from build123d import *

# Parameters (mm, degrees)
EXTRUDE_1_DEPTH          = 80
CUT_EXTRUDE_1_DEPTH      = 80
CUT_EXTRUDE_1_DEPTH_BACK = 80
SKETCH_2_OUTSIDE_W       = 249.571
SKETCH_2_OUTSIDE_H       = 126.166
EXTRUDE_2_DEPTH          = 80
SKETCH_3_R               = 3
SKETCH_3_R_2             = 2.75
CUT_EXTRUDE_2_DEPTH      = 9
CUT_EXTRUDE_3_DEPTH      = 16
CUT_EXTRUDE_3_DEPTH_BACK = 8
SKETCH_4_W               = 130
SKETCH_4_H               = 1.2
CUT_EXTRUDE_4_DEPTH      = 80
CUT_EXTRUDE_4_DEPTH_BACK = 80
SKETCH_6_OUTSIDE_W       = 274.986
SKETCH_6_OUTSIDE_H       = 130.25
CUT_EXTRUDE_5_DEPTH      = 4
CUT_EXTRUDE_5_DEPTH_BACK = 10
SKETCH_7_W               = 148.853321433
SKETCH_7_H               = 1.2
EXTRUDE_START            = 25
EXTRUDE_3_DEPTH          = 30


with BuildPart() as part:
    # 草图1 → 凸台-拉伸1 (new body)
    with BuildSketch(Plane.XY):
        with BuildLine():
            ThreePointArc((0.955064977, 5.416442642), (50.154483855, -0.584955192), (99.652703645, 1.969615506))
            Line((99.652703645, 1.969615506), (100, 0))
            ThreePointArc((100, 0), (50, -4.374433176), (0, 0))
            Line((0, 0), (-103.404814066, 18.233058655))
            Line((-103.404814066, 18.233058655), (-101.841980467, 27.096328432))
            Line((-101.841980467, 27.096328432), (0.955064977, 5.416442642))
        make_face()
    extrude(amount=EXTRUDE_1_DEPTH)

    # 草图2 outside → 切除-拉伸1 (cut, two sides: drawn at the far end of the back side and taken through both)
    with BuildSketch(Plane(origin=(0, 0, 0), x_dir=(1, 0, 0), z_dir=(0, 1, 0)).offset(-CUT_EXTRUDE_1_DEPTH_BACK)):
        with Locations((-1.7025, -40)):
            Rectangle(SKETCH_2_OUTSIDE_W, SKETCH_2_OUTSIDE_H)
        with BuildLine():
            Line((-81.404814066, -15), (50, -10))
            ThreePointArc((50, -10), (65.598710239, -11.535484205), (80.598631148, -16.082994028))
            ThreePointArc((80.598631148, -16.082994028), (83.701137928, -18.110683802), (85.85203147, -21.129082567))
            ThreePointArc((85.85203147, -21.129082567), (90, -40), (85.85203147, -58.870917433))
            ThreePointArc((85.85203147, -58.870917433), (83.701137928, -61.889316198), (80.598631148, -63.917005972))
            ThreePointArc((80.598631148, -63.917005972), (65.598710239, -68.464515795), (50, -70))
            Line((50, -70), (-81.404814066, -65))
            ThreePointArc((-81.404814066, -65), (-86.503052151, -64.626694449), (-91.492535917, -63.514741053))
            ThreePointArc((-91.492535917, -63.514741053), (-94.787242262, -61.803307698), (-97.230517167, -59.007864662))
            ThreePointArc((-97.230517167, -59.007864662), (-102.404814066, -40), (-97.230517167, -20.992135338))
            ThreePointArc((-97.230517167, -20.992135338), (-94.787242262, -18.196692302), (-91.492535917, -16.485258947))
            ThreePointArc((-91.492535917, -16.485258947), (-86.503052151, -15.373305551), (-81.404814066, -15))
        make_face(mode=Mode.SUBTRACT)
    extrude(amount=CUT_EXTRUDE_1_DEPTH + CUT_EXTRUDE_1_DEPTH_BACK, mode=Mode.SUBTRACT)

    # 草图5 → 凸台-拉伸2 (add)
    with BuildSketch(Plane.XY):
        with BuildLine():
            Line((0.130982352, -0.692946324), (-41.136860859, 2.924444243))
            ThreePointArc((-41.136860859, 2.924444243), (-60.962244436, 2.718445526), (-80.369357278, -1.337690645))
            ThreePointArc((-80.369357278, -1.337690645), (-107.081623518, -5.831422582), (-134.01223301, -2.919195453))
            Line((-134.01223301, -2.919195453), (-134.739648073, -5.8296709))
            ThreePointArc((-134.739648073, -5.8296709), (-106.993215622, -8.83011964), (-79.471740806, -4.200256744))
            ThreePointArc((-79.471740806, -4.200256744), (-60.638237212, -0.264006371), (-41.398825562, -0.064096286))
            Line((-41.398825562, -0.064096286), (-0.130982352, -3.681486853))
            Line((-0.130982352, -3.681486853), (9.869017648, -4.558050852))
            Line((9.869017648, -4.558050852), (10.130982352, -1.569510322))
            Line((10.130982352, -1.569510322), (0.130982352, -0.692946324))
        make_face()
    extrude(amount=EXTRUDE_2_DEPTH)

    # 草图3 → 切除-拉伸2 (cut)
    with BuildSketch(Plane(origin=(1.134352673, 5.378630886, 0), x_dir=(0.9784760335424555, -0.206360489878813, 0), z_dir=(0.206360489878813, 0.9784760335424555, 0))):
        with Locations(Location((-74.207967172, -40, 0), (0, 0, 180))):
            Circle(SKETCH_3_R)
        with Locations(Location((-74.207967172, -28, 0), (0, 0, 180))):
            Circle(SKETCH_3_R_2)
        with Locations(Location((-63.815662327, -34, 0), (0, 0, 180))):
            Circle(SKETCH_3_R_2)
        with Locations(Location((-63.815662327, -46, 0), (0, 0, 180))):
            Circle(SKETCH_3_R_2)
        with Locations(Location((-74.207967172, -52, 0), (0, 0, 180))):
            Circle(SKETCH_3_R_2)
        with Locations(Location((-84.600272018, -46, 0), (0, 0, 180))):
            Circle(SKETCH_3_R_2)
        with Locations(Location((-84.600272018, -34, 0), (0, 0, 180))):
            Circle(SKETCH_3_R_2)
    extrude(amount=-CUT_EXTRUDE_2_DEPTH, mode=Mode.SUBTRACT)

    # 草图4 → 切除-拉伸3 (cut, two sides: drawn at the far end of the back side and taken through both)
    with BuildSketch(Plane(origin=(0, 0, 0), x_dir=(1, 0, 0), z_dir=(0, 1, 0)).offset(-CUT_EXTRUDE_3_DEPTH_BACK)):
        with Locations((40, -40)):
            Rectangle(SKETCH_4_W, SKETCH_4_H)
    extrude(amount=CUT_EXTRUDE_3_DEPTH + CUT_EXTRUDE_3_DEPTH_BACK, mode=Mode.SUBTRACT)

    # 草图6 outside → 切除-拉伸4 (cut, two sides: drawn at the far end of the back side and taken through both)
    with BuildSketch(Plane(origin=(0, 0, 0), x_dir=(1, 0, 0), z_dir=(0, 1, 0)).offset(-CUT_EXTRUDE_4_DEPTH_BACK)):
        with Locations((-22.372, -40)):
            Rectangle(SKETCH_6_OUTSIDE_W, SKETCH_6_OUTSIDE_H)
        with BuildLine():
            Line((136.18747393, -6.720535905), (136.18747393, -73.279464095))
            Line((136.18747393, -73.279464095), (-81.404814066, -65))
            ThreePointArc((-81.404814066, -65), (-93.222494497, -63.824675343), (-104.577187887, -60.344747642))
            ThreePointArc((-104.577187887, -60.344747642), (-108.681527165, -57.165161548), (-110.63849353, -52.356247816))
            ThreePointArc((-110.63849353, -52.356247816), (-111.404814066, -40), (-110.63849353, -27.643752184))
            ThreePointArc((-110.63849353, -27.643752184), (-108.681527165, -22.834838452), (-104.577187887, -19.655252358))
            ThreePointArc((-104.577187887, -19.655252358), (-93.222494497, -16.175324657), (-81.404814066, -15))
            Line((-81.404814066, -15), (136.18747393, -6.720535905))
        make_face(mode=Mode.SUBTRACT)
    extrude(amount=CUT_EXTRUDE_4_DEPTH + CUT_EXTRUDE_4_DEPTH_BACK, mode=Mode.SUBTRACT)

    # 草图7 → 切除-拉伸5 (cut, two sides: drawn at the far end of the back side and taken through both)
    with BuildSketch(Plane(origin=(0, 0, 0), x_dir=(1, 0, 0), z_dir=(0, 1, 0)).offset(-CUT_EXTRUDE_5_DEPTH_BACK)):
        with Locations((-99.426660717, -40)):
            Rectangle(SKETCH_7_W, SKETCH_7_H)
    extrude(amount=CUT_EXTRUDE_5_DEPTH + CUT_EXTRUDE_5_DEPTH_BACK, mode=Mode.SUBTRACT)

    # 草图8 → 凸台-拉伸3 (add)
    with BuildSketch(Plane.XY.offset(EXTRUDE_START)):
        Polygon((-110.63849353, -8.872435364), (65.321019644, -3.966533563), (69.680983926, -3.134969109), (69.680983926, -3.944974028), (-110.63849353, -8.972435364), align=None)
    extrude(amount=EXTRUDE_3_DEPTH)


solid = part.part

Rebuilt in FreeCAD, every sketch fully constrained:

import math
import FreeCAD as App
import Part
import Sketcher

V = App.Vector
Q = App.Units.Quantity


def add_polygon(sketch, points):
    """Adds a closed chain of lines whose ends are joined by coincident constraints."""
    first, n = sketch.GeometryCount, len(points)
    for a, b in zip(points, points[1:] + points[:1]):
        sketch.addGeometry(Part.LineSegment(App.Vector(*a, 0), App.Vector(*b, 0)), False)
    for i in range(n):
        sketch.addConstraint(Sketcher.Constraint("Coincident", first + i, 2, first + (i + 1) % n, 1))

doc = App.newDocument("Part")
body = doc.addObject("PartDesign::Body", "Body")

# Sketch on XY plane
sketch1 = body.newObject("Sketcher::SketchObject", "Sketch")
sketch1.AttachmentSupport = (doc.getObject("XY_Plane"), [""])
sketch1.MapMode = "FlatFace"
sketch1.addGeometry(Part.ArcOfCircle(Part.Circle(V(60.169429, 286.18645, 0), V(0, 0, 1), 286.946228), math.radians(-101.909152), math.radians(-82.091114)), False)
sketch1.addGeometry(Part.LineSegment(V(0.955065, 5.416443, 0), V(-101.84198, 27.096328, 0)), False)
sketch1.addGeometry(Part.LineSegment(V(-101.84198, 27.096328, 0), V(-103.404814, 18.233059, 0)), False)
sketch1.addGeometry(Part.LineSegment(V(-103.404814, 18.233059, 0), V(0, 0, 0)), False)
sketch1.addGeometry(Part.ArcOfCircle(Part.Circle(V(50, 283.564091, 0), V(0, 0, 1), 287.938524), math.radians(-100), math.radians(-80)), False)
sketch1.addGeometry(Part.LineSegment(V(100, 0, 0), V(99.652704, 1.969616, 0)), False)
sketch1.addConstraint(Sketcher.Constraint("Tangent", 0, 1, 1, 1))
sketch1.addConstraint(Sketcher.Constraint("Coincident", 1, 2, 2, 1))
sketch1.addConstraint(Sketcher.Constraint("Coincident", 2, 2, 3, 1))
sketch1.addConstraint(Sketcher.Constraint("Tangent", 3, 2, 4, 1))
sketch1.addConstraint(Sketcher.Constraint("Coincident", 4, 2, 5, 1))
sketch1.addConstraint(Sketcher.Constraint("Coincident", 5, 2, 0, 2))
sketch1.addConstraint(Sketcher.Constraint("Coincident", 3, 2, -1, 1))
sketch1.addConstraint(Sketcher.Constraint("PointOnObject", 4, 2, -1))
sketch1.addConstraint(Sketcher.Constraint("Perpendicular", 2, 3))
sketch1.addConstraint(Sketcher.Constraint("Angle", 2, Q("-100 deg")))
sketch1.addConstraint(Sketcher.Constraint("Angle", 5, Q("100 deg")))
sketch1.addConstraint(Sketcher.Constraint("Distance", 2, Q("9 mm")))
sketch1.addConstraint(Sketcher.Constraint("Distance", 3, Q("105 mm")))
sketch1.addConstraint(Sketcher.Constraint("Distance", 5, Q("2 mm")))
sketch1.addConstraint(Sketcher.Constraint("DistanceX", -1, 1, 4, 3, Q("50 mm")))
sketch1.addConstraint(Sketcher.Constraint("Radius", 0, Q("286.946228 mm")))
sketch1.addConstraint(Sketcher.Constraint("DistanceX", -1, 1, 0, 3, Q("60.169429 mm")))
pad1 = body.newObject("PartDesign::Pad", "Pad")
pad1.Profile = sketch1
pad1.Length = 80

# Sketch on XZ plane
sketch2 = body.newObject("Sketcher::SketchObject", "Sketch001")
sketch2.AttachmentSupport = (doc.getObject("XZ_Plane"), [""])
sketch2.MapMode = "FlatFace"
add_polygon(sketch2, [(-126.488, -23.083), (-126.488, 103.083), (123.083, 103.083), (123.083, -23.083)])  # lines 0-3
sketch2.addGeometry(Part.ArcOfCircle(Part.Circle(V(-81.404814, 50, 0), V(0, 0, 1), 35), math.radians(-106.751457), math.radians(-90)), False)  # 4
sketch2.addGeometry(Part.LineSegment(V(-81.404814, 15, 0), V(50, 10, 0)), False)  # 5
sketch2.addGeometry(Part.ArcOfCircle(Part.Circle(V(50, 90, 0), V(0, 0, 1), 80), math.radians(-90), math.radians(-67.512436)), False)  # 6
sketch2.addGeometry(Part.ArcOfCircle(Part.Circle(V(76.773802, 25.32262, 0), V(0, 0, 1), 10), math.radians(-67.512436), math.radians(-24.793792)), False)  # 7
sketch2.addGeometry(Part.ArcOfCircle(Part.Circle(V(45, 40, 0), V(0, 0, 1), 45), math.radians(-24.793792), math.radians(24.793792)), False)  # 8
sketch2.addGeometry(Part.ArcOfCircle(Part.Circle(V(76.773802, 54.67738, 0), V(0, 0, 1), 10), math.radians(24.793792), math.radians(67.512436)), False)  # 9
sketch2.addGeometry(Part.ArcOfCircle(Part.Circle(V(50, -10, 0), V(0, 0, 1), 80), math.radians(67.512436), math.radians(90)), False)  # 10
sketch2.addGeometry(Part.LineSegment(V(50, 70, 0), V(-81.404814, 65, 0)), False)  # 11
sketch2.addGeometry(Part.ArcOfCircle(Part.Circle(V(-81.404814, 30, 0), V(0, 0, 1), 35), math.radians(90), math.radians(106.751457)), False)  # 12
sketch2.addGeometry(Part.ArcOfCircle(Part.Circle(V(-88.61033, 53.939101, 0), V(0, 0, 1), 10), math.radians(106.751457), math.radians(149.544009)), False)  # 13
sketch2.addGeometry(Part.ArcOfCircle(Part.Circle(V(-64.904814, 40, 0), V(0, 0, 1), 37.5), math.radians(149.544009), math.radians(210.455991)), False)  # 14
sketch2.addGeometry(Part.ArcOfCircle(Part.Circle(V(-88.61033, 26.060899, 0), V(0, 0, 1), 10), math.radians(-149.544009), math.radians(-106.751457)), False)  # 15
sketch2.addConstraint(Sketcher.Constraint("Coincident", 4, 2, 5, 1))
sketch2.addConstraint(Sketcher.Constraint("Coincident", 5, 2, 6, 1))
sketch2.addConstraint(Sketcher.Constraint("Tangent", 6, 2, 7, 1))
sketch2.addConstraint(Sketcher.Constraint("Tangent", 7, 2, 8, 1))
sketch2.addConstraint(Sketcher.Constraint("Tangent", 8, 2, 9, 1))
sketch2.addConstraint(Sketcher.Constraint("Tangent", 9, 2, 10, 1))
sketch2.addConstraint(Sketcher.Constraint("Coincident", 10, 2, 11, 1))
sketch2.addConstraint(Sketcher.Constraint("Coincident", 11, 2, 12, 1))
sketch2.addConstraint(Sketcher.Constraint("Tangent", 12, 2, 13, 1))
sketch2.addConstraint(Sketcher.Constraint("Tangent", 13, 2, 14, 1))
sketch2.addConstraint(Sketcher.Constraint("Tangent", 14, 2, 15, 1))
sketch2.addConstraint(Sketcher.Constraint("Tangent", 15, 2, 4, 1))
sketch2.addConstraint(Sketcher.Constraint("Vertical", 0))
sketch2.addConstraint(Sketcher.Constraint("Horizontal", 1))
sketch2.addConstraint(Sketcher.Constraint("Vertical", 2))
sketch2.addConstraint(Sketcher.Constraint("Horizontal", 3))
sketch2.addConstraint(Sketcher.Constraint("Equal", 7, 9))
sketch2.addConstraint(Sketcher.Constraint("Equal", 6, 10))
sketch2.addConstraint(Sketcher.Constraint("Equal", 4, 12))
sketch2.addConstraint(Sketcher.Constraint("Equal", 9, 13))
sketch2.addConstraint(Sketcher.Constraint("Equal", 13, 15))
sketch2.addConstraint(Sketcher.Constraint("Horizontal", 8, 3, 14, 3))
sketch2.addConstraint(Sketcher.Constraint("Vertical", 7, 3, 9, 3))
sketch2.addConstraint(Sketcher.Constraint("Vertical", 6, 3, 10, 3))
sketch2.addConstraint(Sketcher.Constraint("Vertical", 4, 3, 12, 3))
sketch2.addConstraint(Sketcher.Constraint("Vertical", 13, 3, 15, 3))
sketch2.addConstraint(Sketcher.Constraint("Vertical", 12, 3, 4, 2))
sketch2.addConstraint(Sketcher.Constraint("Vertical", 10, 3, 5, 2))
sketch2.addConstraint(Sketcher.Constraint("Vertical", 5, 2, 10, 2))
sketch2.addConstraint(Sketcher.Constraint("Vertical", 4, 2, 11, 2))
sketch2.addConstraint(Sketcher.Constraint("Radius", 4, Q("35 mm")))
sketch2.addConstraint(Sketcher.Constraint("Radius", 6, Q("80 mm")))
sketch2.addConstraint(Sketcher.Constraint("Radius", 7, Q("10 mm")))
sketch2.addConstraint(Sketcher.Constraint("Radius", 8, Q("45 mm")))
sketch2.addConstraint(Sketcher.Constraint("Radius", 14, Q("37.5 mm")))
sketch2.addConstraint(Sketcher.Constraint("DistanceY", -1, 1, 4, 3, Q("50 mm")))
sketch2.addConstraint(Sketcher.Constraint("DistanceX", -1, 1, 6, 3, Q("50 mm")))
sketch2.addConstraint(Sketcher.Constraint("DistanceY", -1, 1, 6, 3, Q("90 mm")))
sketch2.addConstraint(Sketcher.Constraint("DistanceX", -1, 1, 8, 3, Q("45 mm")))
sketch2.addConstraint(Sketcher.Constraint("DistanceY", -1, 1, 8, 3, Q("40 mm")))
sketch2.addConstraint(Sketcher.Constraint("DistanceX", 12, 3, 14, 3, Q("16.5 mm")))
sketch2.addConstraint(Sketcher.Constraint("DistanceX", 1, 1, 1, 2, Q("249.571 mm")))
sketch2.addConstraint(Sketcher.Constraint("DistanceY", 0, 1, 0, 2, Q("126.166 mm")))
sketch2.addConstraint(Sketcher.Constraint("DistanceX", 0, 2, -1, 1, Q("126.488 mm")))
sketch2.addConstraint(Sketcher.Constraint("DistanceY", -1, 1, 0, 2, Q("103.083 mm")))
sketch2.addConstraint(Sketcher.Constraint("DistanceX", 13, 3, -1, 1, Q("88.61033 mm")))
pocket1 = body.newObject("PartDesign::Pocket", "Pocket")
pocket1.Profile = sketch2
pocket1.Type = "ThroughAll"
pocket1.Midplane = True

# Sketch on XY plane
sketch3 = body.newObject("Sketcher::SketchObject", "Sketch002")
sketch3.AttachmentSupport = (doc.getObject("XY_Plane"), [""])
sketch3.MapMode = "FlatFace"
sketch3.addGeometry(Part.LineSegment(V(0.130982, -0.692946, 0), V(-41.136861, 2.924444, 0)), False)
sketch3.addGeometry(Part.ArcOfCircle(Part.Circle(V(-50, -98.187844, 0), V(0, 0, 1), 101.5), math.radians(84.990463), math.radians(107.409889)), False)
sketch3.addGeometry(Part.ArcOfCircle(Part.Circle(V(-110, 93.156646, 0), V(0, 0, 1), 99.03108), math.radians(-104.032467), math.radians(-72.590111)), False)
sketch3.addGeometry(Part.LineSegment(V(-134.012233, -2.919195, 0), V(-134.739648, -5.829671, 0)), False)
sketch3.addGeometry(Part.ArcOfCircle(Part.Circle(V(-110, 93.156646, 0), V(0, 0, 1), 102.03108), math.radians(-104.032467), math.radians(-72.590111)), False)
sketch3.addGeometry(Part.ArcOfCircle(Part.Circle(V(-50, -98.187844, 0), V(0, 0, 1), 98.5), math.radians(84.990463), math.radians(107.409889)), False)
sketch3.addGeometry(Part.LineSegment(V(-41.398826, -0.064096, 0), V(-0.130982, -3.681487, 0)), False)
sketch3.addGeometry(Part.LineSegment(V(-0.130982, -3.681487, 0), V(9.869018, -4.558051, 0)), False)
sketch3.addGeometry(Part.LineSegment(V(9.869018, -4.558051, 0), V(10.130982, -1.56951, 0)), False)
sketch3.addGeometry(Part.LineSegment(V(10.130982, -1.56951, 0), V(0.130982, -0.692946, 0)), False)
sketch3.addConstraint(Sketcher.Constraint("Tangent", 0, 2, 1, 1))
sketch3.addConstraint(Sketcher.Constraint("Tangent", 1, 2, 2, 2))
sketch3.addConstraint(Sketcher.Constraint("Coincident", 2, 1, 3, 1))
sketch3.addConstraint(Sketcher.Constraint("Coincident", 3, 2, 4, 1))
sketch3.addConstraint(Sketcher.Constraint("Tangent", 4, 2, 5, 2))
sketch3.addConstraint(Sketcher.Constraint("Tangent", 5, 1, 6, 1))
sketch3.addConstraint(Sketcher.Constraint("Coincident", 6, 2, 7, 1))
sketch3.addConstraint(Sketcher.Constraint("Coincident", 7, 2, 8, 1))
sketch3.addConstraint(Sketcher.Constraint("Coincident", 8, 2, 9, 1))
sketch3.addConstraint(Sketcher.Constraint("Coincident", 9, 2, 0, 1))
sketch3.addConstraint(Sketcher.Constraint("Coincident", 4, 3, 2, 3))
sketch3.addConstraint(Sketcher.Constraint("Coincident", 5, 3, 1, 3))
sketch3.addConstraint(Sketcher.Constraint("Parallel", 0, 6))
sketch3.addConstraint(Sketcher.Constraint("Parallel", 6, 7))
sketch3.addConstraint(Sketcher.Constraint("Perpendicular", 7, 8))
sketch3.addConstraint(Sketcher.Constraint("Perpendicular", 8, 9))
sketch3.addConstraint(Sketcher.Constraint("Equal", 0, 6))
sketch3.addConstraint(Sketcher.Constraint("Radius", 1, Q("101.5 mm")))
sketch3.addConstraint(Sketcher.Constraint("Radius", 5, Q("98.5 mm")))
sketch3.addConstraint(Sketcher.Constraint("DistanceX", 1, 3, -1, 1, Q("50 mm")))
sketch3.addConstraint(Sketcher.Constraint("DistanceX", 2, 3, -1, 1, Q("110 mm")))
sketch3.addConstraint(Sketcher.Constraint("DistanceX", 6, 2, 7, 2, Q("10 mm")))
sketch3.addConstraint(Sketcher.Constraint("Radius", 2, Q("99.03108 mm")))
sketch3.addConstraint(Sketcher.Constraint("DistanceY", 2, 1, 5, 1, Q("2.855099 mm")))
sketch3.addConstraint(Sketcher.Constraint("DistanceX", 0, 2, -1, 1, Q("41.136861 mm")))
sketch3.addConstraint(Sketcher.Constraint("DistanceY", 1, 2, -1, 1, Q("1.337691 mm")))
sketch3.addConstraint(Sketcher.Constraint("DistanceX", 3, 2, -1, 1, Q("134.739648 mm")))
sketch3.addConstraint(Sketcher.Constraint("DistanceY", 7, 2, -1, 1, Q("4.558051 mm")))
pad2 = body.newObject("PartDesign::Pad", "Pad001")
pad2.Profile = sketch3
pad2.Length = 80

# Sketch on an angled plane
sketch4 = body.newObject("Sketcher::SketchObject", "Sketch003")
sketch4.Placement = App.Placement(V(1.134353, 5.378631, 0), App.Rotation(V(0.978476034, -0.20636049, 0), V(0, 0, -1.000000001), V(0.20636049, 0.978476034, 0), "ZXY"))
sketch4.addGeometry(Part.Circle(V(-74.207967, -40, 0), V(0, 0, 1), 3), False)
sketch4.addGeometry(Part.Circle(V(-74.207967, -28, 0), V(0, 0, 1), 2.75), False)
sketch4.addGeometry(Part.Circle(V(-63.815662, -34, 0), V(0, 0, 1), 2.75), False)
sketch4.addGeometry(Part.Circle(V(-63.815662, -46, 0), V(0, 0, 1), 2.75), False)
sketch4.addGeometry(Part.Circle(V(-74.207967, -52, 0), V(0, 0, 1), 2.75), False)
sketch4.addGeometry(Part.Circle(V(-84.600272, -46, 0), V(0, 0, 1), 2.75), False)
sketch4.addGeometry(Part.Circle(V(-84.600272, -34, 0), V(0, 0, 1), 2.75), False)
sketch4.addConstraint(Sketcher.Constraint("Equal", 1, 2))
sketch4.addConstraint(Sketcher.Constraint("Equal", 2, 3))
sketch4.addConstraint(Sketcher.Constraint("Equal", 3, 4))
sketch4.addConstraint(Sketcher.Constraint("Equal", 4, 5))
sketch4.addConstraint(Sketcher.Constraint("Equal", 5, 6))
sketch4.addConstraint(Sketcher.Constraint("Horizontal", 3, 3, 5, 3))
sketch4.addConstraint(Sketcher.Constraint("Horizontal", 2, 3, 6, 3))
sketch4.addConstraint(Sketcher.Constraint("Vertical", 0, 3, 1, 3))
sketch4.addConstraint(Sketcher.Constraint("Vertical", 2, 3, 3, 3))
sketch4.addConstraint(Sketcher.Constraint("Vertical", 1, 3, 4, 3))
sketch4.addConstraint(Sketcher.Constraint("Vertical", 5, 3, 6, 3))
sketch4.addConstraint(Sketcher.Constraint("Diameter", 0, Q("6 mm")))
sketch4.addConstraint(Sketcher.Constraint("Diameter", 1, Q("5.5 mm")))
sketch4.addConstraint(Sketcher.Constraint("DistanceY", 0, 3, -1, 1, Q("40 mm")))
sketch4.addConstraint(Sketcher.Constraint("DistanceY", 1, 3, -1, 1, Q("28 mm")))
sketch4.addConstraint(Sketcher.Constraint("DistanceY", 2, 3, -1, 1, Q("34 mm")))
sketch4.addConstraint(Sketcher.Constraint("DistanceY", 3, 3, -1, 1, Q("46 mm")))
sketch4.addConstraint(Sketcher.Constraint("DistanceY", 4, 3, -1, 1, Q("52 mm")))
sketch4.addConstraint(Sketcher.Constraint("DistanceX", 5, 3, 3, 3, Q("20.78461 mm")))
sketch4.addConstraint(Sketcher.Constraint("DistanceX", 0, 3, -1, 1, Q("74.207967 mm")))
sketch4.addConstraint(Sketcher.Constraint("DistanceX", 2, 3, -1, 1, Q("63.815662 mm")))
pocket2 = body.newObject("PartDesign::Pocket", "Pocket001")
pocket2.Profile = sketch4
pocket2.Length = 9

# Sketch on XZ plane
sketch5 = body.newObject("Sketcher::SketchObject", "Sketch004")
sketch5.AttachmentSupport = (doc.getObject("XZ_Plane"), [""])
sketch5.MapMode = "FlatFace"
add_polygon(sketch5, [(-25, 39.4), (-25, 40.6), (105, 40.6), (105, 39.4)])  # lines 0-3
sketch5.addConstraint(Sketcher.Constraint("Vertical", 0))
sketch5.addConstraint(Sketcher.Constraint("Horizontal", 1))
sketch5.addConstraint(Sketcher.Constraint("Vertical", 2))
sketch5.addConstraint(Sketcher.Constraint("Horizontal", 3))
sketch5.addConstraint(Sketcher.Constraint("DistanceX", 1, 1, 1, 2, Q("130 mm")))
sketch5.addConstraint(Sketcher.Constraint("DistanceY", 0, 1, 0, 2, Q("1.2 mm")))
sketch5.addConstraint(Sketcher.Constraint("DistanceX", 0, 2, -1, 1, Q("25 mm")))
sketch5.addConstraint(Sketcher.Constraint("DistanceY", -1, 1, 0, 2, Q("40.6 mm")))
pocket3 = body.newObject("PartDesign::Pocket", "Pocket002")
pocket3.Profile = sketch5
pocket3.Type = "ThroughAll"
pocket3.Midplane = True

# Sketch on XZ plane
sketch6 = body.newObject("Sketcher::SketchObject", "Sketch005")
sketch6.AttachmentSupport = (doc.getObject("XZ_Plane"), [""])
sketch6.MapMode = "FlatFace"
sketch6.addGeometry(Part.LineSegment(V(-159.865, -25.125, 0), V(-159.865, 105.125, 0)), False)
sketch6.addGeometry(Part.LineSegment(V(-159.865, 105.125, 0), V(115.121, 105.125, 0)), False)
sketch6.addGeometry(Part.LineSegment(V(115.121, 105.125, 0), V(115.121, 72.477877, 0)), False)
sketch6.addGeometry(Part.LineSegment(V(115.121, 72.477877, 0), V(-81.404814, 65, 0)), False)
sketch6.addGeometry(Part.ArcOfCircle(Part.Circle(V(-81.404814, 5, 0), V(0, 0, 1), 60), math.radians(90), math.radians(112.718645)), False)
sketch6.addGeometry(Part.ArcOfCircle(Part.Circle(V(-100.715126, 51.120623, 0), V(0, 0, 1), 10), math.radians(112.718645), math.radians(172.902252)), False)
sketch6.addGeometry(Part.ArcOfCircle(Part.Circle(V(-11.404814, 40, 0), V(0, 0, 1), 100), math.radians(172.902252), math.radians(187.097748)), False)
sketch6.addGeometry(Part.ArcOfCircle(Part.Circle(V(-100.715126, 28.879377, 0), V(0, 0, 1), 10), math.radians(-172.902252), math.radians(-112.718645)), False)
sketch6.addGeometry(Part.ArcOfCircle(Part.Circle(V(-81.404814, 75, 0), V(0, 0, 1), 60), math.radians(-112.718645), math.radians(-90)), False)
sketch6.addGeometry(Part.LineSegment(V(-81.404814, 15, 0), V(115.121, 7.522123, 0)), False)
sketch6.addGeometry(Part.LineSegment(V(115.121, 7.522123, 0), V(115.121, -25.125, 0)), False)
sketch6.addGeometry(Part.LineSegment(V(115.121, -25.125, 0), V(-159.865, -25.125, 0)), False)
sketch6.addConstraint(Sketcher.Constraint("Coincident", 0, 2, 1, 1))
sketch6.addConstraint(Sketcher.Constraint("Coincident", 1, 2, 2, 1))
sketch6.addConstraint(Sketcher.Constraint("Coincident", 2, 2, 3, 1))
sketch6.addConstraint(Sketcher.Constraint("Coincident", 3, 2, 4, 1))
sketch6.addConstraint(Sketcher.Constraint("Tangent", 4, 2, 5, 1))
sketch6.addConstraint(Sketcher.Constraint("Tangent", 5, 2, 6, 1))
sketch6.addConstraint(Sketcher.Constraint("Tangent", 6, 2, 7, 1))
sketch6.addConstraint(Sketcher.Constraint("Tangent", 7, 2, 8, 1))
sketch6.addConstraint(Sketcher.Constraint("Coincident", 8, 2, 9, 1))
sketch6.addConstraint(Sketcher.Constraint("Coincident", 9, 2, 10, 1))
sketch6.addConstraint(Sketcher.Constraint("Coincident", 10, 2, 11, 1))
sketch6.addConstraint(Sketcher.Constraint("Coincident", 11, 2, 0, 1))
sketch6.addConstraint(Sketcher.Constraint("Vertical", 0))
sketch6.addConstraint(Sketcher.Constraint("Horizontal", 1))
sketch6.addConstraint(Sketcher.Constraint("Vertical", 2))
sketch6.addConstraint(Sketcher.Constraint("Vertical", 10))
sketch6.addConstraint(Sketcher.Constraint("Horizontal", 11))
sketch6.addConstraint(Sketcher.Constraint("Equal", 5, 7))
sketch6.addConstraint(Sketcher.Constraint("Equal", 4, 8))
sketch6.addConstraint(Sketcher.Constraint("Vertical", 5, 3, 7, 3))
sketch6.addConstraint(Sketcher.Constraint("Vertical", 4, 3, 8, 3))
sketch6.addConstraint(Sketcher.Constraint("Vertical", 8, 3, 3, 2))
sketch6.addConstraint(Sketcher.Constraint("Vertical", 3, 2, 8, 2))
sketch6.addConstraint(Sketcher.Constraint("Vertical", 2, 2, 9, 2))
sketch6.addConstraint(Sketcher.Constraint("Equal", 2, 10))
sketch6.addConstraint(Sketcher.Constraint("Equal", 3, 9))
sketch6.addConstraint(Sketcher.Constraint("Radius", 4, Q("60 mm")))
sketch6.addConstraint(Sketcher.Constraint("Radius", 5, Q("10 mm")))
sketch6.addConstraint(Sketcher.Constraint("Radius", 6, Q("100 mm")))
sketch6.addConstraint(Sketcher.Constraint("DistanceY", -1, 1, 4, 3, Q("5 mm")))
sketch6.addConstraint(Sketcher.Constraint("DistanceY", -1, 1, 6, 3, Q("40 mm")))
sketch6.addConstraint(Sketcher.Constraint("DistanceX", 4, 3, 6, 3, Q("70 mm")))
sketch6.addConstraint(Sketcher.Constraint("DistanceY", 0, 1, 0, 2, Q("130.25 mm")))
sketch6.addConstraint(Sketcher.Constraint("DistanceX", 1, 1, 1, 2, Q("274.986 mm")))
sketch6.addConstraint(Sketcher.Constraint("DistanceX", 0, 2, -1, 1, Q("159.865 mm")))
sketch6.addConstraint(Sketcher.Constraint("Distance", 3, Q("196.668031 mm")))
sketch6.addConstraint(Sketcher.Constraint("DistanceY", 2, 2, 2, 1, Q("32.647123 mm")))
pocket4 = body.newObject("PartDesign::Pocket", "Pocket003")
pocket4.Profile = sketch6
pocket4.Type = "ThroughAll"
pocket4.Midplane = True

# Sketch on XZ plane
sketch7 = body.newObject("Sketcher::SketchObject", "Sketch006")
sketch7.AttachmentSupport = (doc.getObject("XZ_Plane"), [""])
sketch7.MapMode = "FlatFace"
add_polygon(sketch7, [(-173.853321, 39.4), (-173.853321, 40.6), (-25, 40.6), (-25, 39.4)])  # lines 0-3
sketch7.addConstraint(Sketcher.Constraint("Vertical", 0))
sketch7.addConstraint(Sketcher.Constraint("Horizontal", 1))
sketch7.addConstraint(Sketcher.Constraint("Vertical", 2))
sketch7.addConstraint(Sketcher.Constraint("Horizontal", 3))
sketch7.addConstraint(Sketcher.Constraint("DistanceY", 0, 1, 0, 2, Q("1.2 mm")))
sketch7.addConstraint(Sketcher.Constraint("DistanceX", 1, 2, -1, 1, Q("25 mm")))
sketch7.addConstraint(Sketcher.Constraint("DistanceY", -1, 1, 0, 2, Q("40.6 mm")))
sketch7.addConstraint(Sketcher.Constraint("DistanceX", 1, 1, 1, 2, Q("148.853321 mm")))
pocket5 = body.newObject("PartDesign::Pocket", "Pocket004")
pocket5.Profile = sketch7
pocket5.Type = "TwoLengths"
pocket5.Length = 4
pocket5.Length2 = 10

# Sketch on XY plane
sketch8 = body.newObject("Sketcher::SketchObject", "Sketch007")
sketch8.AttachmentSupport = (doc.getObject("XY_Plane"), [""])
sketch8.MapMode = "FlatFace"
sketch8.AttachmentOffset = App.Placement(V(0, 0, 25), App.Rotation())
add_polygon(sketch8, [(65.32102, -3.966534), (-110.638494, -8.872435), (-110.638494, -8.972435), (69.680984, -3.944974), (69.680984, -3.134969)])  # lines 0-4
sketch8.addConstraint(Sketcher.Constraint("Vertical", 1))
sketch8.addConstraint(Sketcher.Constraint("Vertical", 3))
sketch8.addConstraint(Sketcher.Constraint("Parallel", 0, 2))
sketch8.addConstraint(Sketcher.Constraint("DistanceY", 1, 2, 1, 1, Q("0.1 mm")))
sketch8.addConstraint(Sketcher.Constraint("DistanceY", 0, 2, 4, 2, Q("4.905902 mm")))
sketch8.addConstraint(Sketcher.Constraint("Distance", 0, Q("176.02789 mm")))
sketch8.addConstraint(Sketcher.Constraint("Distance", 2, Q("180.389549 mm")))
sketch8.addConstraint(Sketcher.Constraint("DistanceY", 3, 1, 3, 2, Q("0.810005 mm")))
sketch8.addConstraint(Sketcher.Constraint("DistanceY", 3, 2, -1, 1, Q("3.134969 mm")))
sketch8.addConstraint(Sketcher.Constraint("DistanceX", -1, 1, 4, 2, Q("65.32102 mm")))
pad3 = body.newObject("PartDesign::Pad", "Pad002")
pad3.Profile = sketch8
pad3.Length = 30

doc.recompute()
